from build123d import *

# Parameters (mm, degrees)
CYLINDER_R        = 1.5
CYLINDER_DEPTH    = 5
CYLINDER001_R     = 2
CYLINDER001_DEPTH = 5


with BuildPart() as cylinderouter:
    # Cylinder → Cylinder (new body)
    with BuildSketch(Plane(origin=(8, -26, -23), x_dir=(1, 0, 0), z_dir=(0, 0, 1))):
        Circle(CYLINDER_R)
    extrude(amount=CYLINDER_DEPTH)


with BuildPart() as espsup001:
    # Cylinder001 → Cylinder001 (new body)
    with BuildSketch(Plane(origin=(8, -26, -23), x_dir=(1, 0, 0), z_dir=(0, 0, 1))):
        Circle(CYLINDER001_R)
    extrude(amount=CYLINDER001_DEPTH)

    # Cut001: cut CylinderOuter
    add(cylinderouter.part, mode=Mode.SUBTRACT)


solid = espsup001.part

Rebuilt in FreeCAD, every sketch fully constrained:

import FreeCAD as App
import Part
import Sketcher
Q = App.Units.Quantity

doc = App.newDocument("Part")
body = doc.addObject("PartDesign::Body", "Body")

# Sketch on XY plane
sketch1 = body.newObject("Sketcher::SketchObject", "Sketch")
sketch1.AttachmentSupport = (doc.getObject("XY_Plane"), [""])
sketch1.MapMode = "FlatFace"
sketch1.AttachmentOffset = App.Placement(App.Vector(0, 0, -23), App.Rotation())
sketch1.addGeometry(Part.Circle(App.Vector(8, -26, 0), App.Vector(0, 0, 1), 1.5), False)
sketch1.addConstraint([
    Sketcher.Constraint("Diameter", 0, Q("3 mm")),
    Sketcher.Constraint("DistanceX", -1, 1, 0, 3, Q("8 mm")),
    Sketcher.Constraint("DistanceY", 0, 3, -1, 1, Q("26 mm")),
])
pad1 = body.newObject("PartDesign::Pad", "Pad")
pad1.Profile = sketch1
pad1.Length = 5
body2 = doc.addObject("PartDesign::Body", "Body001")

# Sketch on XY plane
sketch2 = body2.newObject("Sketcher::SketchObject", "Sketch001")
sketch2.AttachmentSupport = (doc.getObject("XY_Plane001"), [""])
sketch2.MapMode = "FlatFace"
sketch2.AttachmentOffset = App.Placement(App.Vector(0, 0, -23), App.Rotation())
sketch2.addGeometry(Part.Circle(App.Vector(8, -26, 0), App.Vector(0, 0, 1), 2), False)
sketch2.addConstraint([
    Sketcher.Constraint("Diameter", 0, Q("4 mm")),
    Sketcher.Constraint("DistanceX", -1, 1, 0, 3, Q("8 mm")),
    Sketcher.Constraint("DistanceY", 0, 3, -1, 1, Q("26 mm")),
])
pad2 = body2.newObject("PartDesign::Pad", "Pad001")
pad2.Profile = sketch2
pad2.Length = 5
doc.recompute()

boolean = body2.newObject("PartDesign::Boolean", "Boolean")
boolean.Type = "Cut"
boolean.addObjects([body])

doc.recompute()
